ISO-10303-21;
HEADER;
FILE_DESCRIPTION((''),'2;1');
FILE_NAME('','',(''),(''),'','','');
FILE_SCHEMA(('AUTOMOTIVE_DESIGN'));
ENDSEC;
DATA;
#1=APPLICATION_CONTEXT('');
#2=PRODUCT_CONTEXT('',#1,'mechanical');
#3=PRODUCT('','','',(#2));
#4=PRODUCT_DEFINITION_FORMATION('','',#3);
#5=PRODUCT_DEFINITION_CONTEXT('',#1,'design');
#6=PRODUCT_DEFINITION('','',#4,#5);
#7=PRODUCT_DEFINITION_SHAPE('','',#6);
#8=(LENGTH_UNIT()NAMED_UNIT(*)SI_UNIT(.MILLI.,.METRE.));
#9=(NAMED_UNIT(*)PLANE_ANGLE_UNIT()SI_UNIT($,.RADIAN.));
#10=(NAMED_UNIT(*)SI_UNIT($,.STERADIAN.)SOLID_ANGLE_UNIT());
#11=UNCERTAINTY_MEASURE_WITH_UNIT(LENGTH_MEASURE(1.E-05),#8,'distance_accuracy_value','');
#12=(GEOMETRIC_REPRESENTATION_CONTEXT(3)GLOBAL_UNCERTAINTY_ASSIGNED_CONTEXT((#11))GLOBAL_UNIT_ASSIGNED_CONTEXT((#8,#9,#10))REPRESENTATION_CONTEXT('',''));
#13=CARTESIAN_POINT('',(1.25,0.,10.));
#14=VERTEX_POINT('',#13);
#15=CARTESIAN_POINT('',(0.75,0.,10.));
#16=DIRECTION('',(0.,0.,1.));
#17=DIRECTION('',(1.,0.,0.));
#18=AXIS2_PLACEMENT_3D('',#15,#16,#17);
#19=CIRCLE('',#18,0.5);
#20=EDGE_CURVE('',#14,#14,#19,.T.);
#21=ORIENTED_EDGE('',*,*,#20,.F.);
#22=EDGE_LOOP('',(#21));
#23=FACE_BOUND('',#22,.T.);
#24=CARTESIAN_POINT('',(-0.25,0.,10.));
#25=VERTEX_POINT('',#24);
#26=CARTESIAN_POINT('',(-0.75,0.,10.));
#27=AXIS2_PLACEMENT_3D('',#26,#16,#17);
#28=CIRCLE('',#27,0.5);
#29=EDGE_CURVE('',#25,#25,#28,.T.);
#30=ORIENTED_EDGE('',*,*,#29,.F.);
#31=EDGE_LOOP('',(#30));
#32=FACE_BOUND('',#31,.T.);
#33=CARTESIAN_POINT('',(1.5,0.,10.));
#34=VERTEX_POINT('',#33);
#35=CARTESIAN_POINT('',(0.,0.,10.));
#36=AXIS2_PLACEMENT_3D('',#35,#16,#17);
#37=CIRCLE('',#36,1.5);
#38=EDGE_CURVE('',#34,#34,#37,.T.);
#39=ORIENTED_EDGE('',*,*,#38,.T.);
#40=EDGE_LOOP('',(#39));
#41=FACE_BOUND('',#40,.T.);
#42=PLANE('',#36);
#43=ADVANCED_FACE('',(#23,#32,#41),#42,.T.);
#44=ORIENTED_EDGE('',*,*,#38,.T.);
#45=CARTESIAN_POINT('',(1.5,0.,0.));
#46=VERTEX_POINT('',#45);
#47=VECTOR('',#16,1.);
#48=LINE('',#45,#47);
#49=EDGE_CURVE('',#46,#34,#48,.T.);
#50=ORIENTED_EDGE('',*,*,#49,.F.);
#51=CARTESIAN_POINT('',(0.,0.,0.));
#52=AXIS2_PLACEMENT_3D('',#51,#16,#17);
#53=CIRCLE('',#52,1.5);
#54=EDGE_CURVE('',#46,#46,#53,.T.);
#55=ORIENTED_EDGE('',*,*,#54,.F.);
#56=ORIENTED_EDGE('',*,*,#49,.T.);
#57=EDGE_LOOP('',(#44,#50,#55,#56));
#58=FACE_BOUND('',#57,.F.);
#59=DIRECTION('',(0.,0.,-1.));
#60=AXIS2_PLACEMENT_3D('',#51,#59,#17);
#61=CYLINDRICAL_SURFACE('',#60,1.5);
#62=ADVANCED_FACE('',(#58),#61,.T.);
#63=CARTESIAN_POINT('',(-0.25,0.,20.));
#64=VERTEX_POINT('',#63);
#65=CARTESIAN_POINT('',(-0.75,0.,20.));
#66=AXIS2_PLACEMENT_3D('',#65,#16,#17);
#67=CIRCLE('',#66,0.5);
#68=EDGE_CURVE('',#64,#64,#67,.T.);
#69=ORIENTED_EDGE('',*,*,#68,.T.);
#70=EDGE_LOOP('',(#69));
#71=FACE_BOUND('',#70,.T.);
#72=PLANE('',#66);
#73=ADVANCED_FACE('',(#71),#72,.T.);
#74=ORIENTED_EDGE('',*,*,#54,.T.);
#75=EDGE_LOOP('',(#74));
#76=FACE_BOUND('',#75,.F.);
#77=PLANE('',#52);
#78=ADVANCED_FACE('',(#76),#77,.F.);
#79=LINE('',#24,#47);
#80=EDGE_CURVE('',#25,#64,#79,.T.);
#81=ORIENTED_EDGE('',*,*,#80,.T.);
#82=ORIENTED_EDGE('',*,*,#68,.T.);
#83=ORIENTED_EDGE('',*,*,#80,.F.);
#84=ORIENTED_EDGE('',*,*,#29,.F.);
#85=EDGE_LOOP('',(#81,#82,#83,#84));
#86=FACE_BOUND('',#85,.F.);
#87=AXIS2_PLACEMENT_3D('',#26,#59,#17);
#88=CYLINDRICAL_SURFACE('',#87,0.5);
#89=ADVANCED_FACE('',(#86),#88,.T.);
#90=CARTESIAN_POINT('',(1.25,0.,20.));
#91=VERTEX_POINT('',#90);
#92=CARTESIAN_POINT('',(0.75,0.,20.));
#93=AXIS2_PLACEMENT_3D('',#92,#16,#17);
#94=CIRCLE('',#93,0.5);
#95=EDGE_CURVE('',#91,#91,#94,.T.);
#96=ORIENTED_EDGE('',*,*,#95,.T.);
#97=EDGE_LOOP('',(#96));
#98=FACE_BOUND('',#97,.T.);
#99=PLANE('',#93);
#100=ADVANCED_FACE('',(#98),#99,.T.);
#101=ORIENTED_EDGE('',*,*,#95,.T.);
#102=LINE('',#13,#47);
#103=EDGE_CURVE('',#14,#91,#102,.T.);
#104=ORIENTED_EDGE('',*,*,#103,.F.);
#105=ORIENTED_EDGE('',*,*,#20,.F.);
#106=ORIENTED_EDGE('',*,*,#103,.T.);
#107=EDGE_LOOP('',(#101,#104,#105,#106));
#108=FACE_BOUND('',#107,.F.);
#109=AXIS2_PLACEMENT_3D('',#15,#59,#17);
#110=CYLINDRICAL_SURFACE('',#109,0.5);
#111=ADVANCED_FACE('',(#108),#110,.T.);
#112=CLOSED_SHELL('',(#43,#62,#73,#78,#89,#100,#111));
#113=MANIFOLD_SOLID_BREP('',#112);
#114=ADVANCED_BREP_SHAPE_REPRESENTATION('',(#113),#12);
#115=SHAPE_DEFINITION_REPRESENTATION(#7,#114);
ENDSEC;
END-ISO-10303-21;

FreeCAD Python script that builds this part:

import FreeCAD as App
import Part
import Sketcher

V = App.Vector

doc = App.newDocument("Part")
body = doc.addObject("PartDesign::Body", "Body")

sketch1 = body.newObject("Sketcher::SketchObject", "Sketch")
sketch1.AttachmentSupport = (doc.getObject("XY_Plane"), [""])
sketch1.MapMode = "FlatFace"
sketch1.addGeometry(Part.Circle(V(0, 0, 0), V(0, 0, 1), 1.5), False)
sketch1.addConstraint([
    Sketcher.Constraint("Coincident", 0, 3, -1, 1),
    Sketcher.Constraint("Diameter", 0, 3.0),
])
pad1 = body.newObject("PartDesign::Pad", "Pad")
pad1.Profile = sketch1
pad1.Length = 10

sketch2 = body.newObject("Sketcher::SketchObject", "Sketch001")
sketch2.AttachmentSupport = (doc.getObject("XY_Plane"), [""])
sketch2.MapMode = "FlatFace"
sketch2.AttachmentOffset = App.Placement(V(0, 0, 10), App.Rotation())
sketch2.addGeometry([
    Part.Circle(V(-0.8, 0, 0), V(0, 0, 1), 0.5),
    Part.Circle(V(0.8, 0, 0), V(0, 0, 1), 0.5),
], False)
sketch2.addConstraint([
    Sketcher.Constraint("Equal", 0, 1),
    Sketcher.Constraint("Symmetric", 0, 3, 1, 3, -1, 1),
    Sketcher.Constraint("PointOnObject", 0, 3, -1),
    Sketcher.Constraint("Diameter", 0, 1.0),
    Sketcher.Constraint("DistanceX", 0, 3, 1, 3, 1.5),
])
pad2 = body.newObject("PartDesign::Pad", "Pad001")
pad2.Profile = sketch2
pad2.Length = 10

doc.recompute()
